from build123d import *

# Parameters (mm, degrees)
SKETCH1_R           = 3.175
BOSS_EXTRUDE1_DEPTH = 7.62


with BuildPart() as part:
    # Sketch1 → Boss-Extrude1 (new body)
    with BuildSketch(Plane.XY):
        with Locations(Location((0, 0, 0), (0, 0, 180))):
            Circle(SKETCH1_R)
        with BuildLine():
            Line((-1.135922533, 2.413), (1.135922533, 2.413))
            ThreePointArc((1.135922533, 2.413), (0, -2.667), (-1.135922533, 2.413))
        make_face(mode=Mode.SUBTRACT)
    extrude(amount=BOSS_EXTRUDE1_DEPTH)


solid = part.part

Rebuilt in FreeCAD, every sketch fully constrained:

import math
import FreeCAD as App
import Part
import Sketcher
from FreeCAD import Vector
Q = App.Units.Quantity

doc = App.newDocument("Part")
body = doc.addObject("PartDesign::Body", "Body")

sketch1 = body.newObject("Sketcher::SketchObject", "Sketch")
sketch1.AttachmentSupport = (doc.getObject("XY_Plane"), [""])
sketch1.MapMode = "FlatFace"
sketch1.addGeometry([
    Part.Circle(Vector(0, 0, 0), Vector(0, 0, 1), 3.2),
    Part.ArcOfCircle(Part.Circle(Vector(0, 0, 0), Vector(0, 0, 1), 2.7), math.radians(115), math.radians(425)),
    Part.LineSegment(Vector(-1.1, 2.4, 0), Vector(1.1, 2.4, 0)),
], False)
sketch1.addConstraint([
    Sketcher.Constraint("Coincident", 1, 1, 2, 1),
    Sketcher.Constraint("Coincident", 2, 2, 1, 2),
    Sketcher.Constraint("Horizontal", 2),
    Sketcher.Constraint("Coincident", 0, 3, -1, 1),
    Sketcher.Constraint("Coincident", 1, 3, -1, 1),
    Sketcher.Constraint("Diameter", 0, Q("0.25 in")),
    Sketcher.Constraint("Radius", 1, Q("0.105 in")),
    Sketcher.Constraint("DistanceY", -1, 1, 1, 1, Q("0.095 in")),
])
pad1 = body.newObject("PartDesign::Pad", "Pad")
pad1.Profile = sketch1
pad1.Length = Q("0.3 in")

doc.recompute()
